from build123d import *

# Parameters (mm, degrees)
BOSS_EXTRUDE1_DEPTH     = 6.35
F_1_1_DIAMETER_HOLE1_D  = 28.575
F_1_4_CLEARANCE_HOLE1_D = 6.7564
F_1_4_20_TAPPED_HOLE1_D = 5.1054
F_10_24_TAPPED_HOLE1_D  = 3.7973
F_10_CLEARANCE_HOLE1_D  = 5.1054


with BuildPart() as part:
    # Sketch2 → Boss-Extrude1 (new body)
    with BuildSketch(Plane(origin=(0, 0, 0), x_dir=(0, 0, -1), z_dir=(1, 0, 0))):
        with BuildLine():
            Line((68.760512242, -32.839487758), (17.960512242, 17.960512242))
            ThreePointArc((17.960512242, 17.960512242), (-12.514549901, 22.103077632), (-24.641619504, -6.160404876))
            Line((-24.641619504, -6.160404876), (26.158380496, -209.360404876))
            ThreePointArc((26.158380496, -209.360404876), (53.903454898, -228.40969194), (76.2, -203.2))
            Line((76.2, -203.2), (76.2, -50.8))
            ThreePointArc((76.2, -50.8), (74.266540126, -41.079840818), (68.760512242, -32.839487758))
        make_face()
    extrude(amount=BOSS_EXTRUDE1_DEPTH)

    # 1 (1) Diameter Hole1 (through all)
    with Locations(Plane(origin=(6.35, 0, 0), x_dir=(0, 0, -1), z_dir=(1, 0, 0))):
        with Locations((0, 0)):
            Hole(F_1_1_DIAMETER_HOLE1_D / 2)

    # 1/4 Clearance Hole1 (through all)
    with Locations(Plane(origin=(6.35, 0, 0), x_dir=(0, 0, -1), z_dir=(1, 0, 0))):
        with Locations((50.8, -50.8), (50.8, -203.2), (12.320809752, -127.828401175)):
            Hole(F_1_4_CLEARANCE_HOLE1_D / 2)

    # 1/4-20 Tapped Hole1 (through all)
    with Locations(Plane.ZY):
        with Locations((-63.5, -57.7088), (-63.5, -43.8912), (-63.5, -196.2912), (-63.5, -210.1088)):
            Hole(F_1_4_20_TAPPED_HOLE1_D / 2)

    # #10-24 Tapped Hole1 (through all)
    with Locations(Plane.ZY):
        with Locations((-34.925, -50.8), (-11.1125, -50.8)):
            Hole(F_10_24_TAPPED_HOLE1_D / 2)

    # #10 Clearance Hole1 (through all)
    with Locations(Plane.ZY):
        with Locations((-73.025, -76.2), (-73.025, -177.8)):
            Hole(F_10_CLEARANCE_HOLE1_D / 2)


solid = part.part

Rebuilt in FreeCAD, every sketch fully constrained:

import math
import FreeCAD as App
import Part
import Sketcher
Q = App.Units.Quantity

doc = App.newDocument("Part")
body = doc.addObject("PartDesign::Body", "Body")

sketch1 = body.newObject("Sketcher::SketchObject", "Sketch")
sketch1.AttachmentSupport = (doc.getObject("YZ_Plane"), [""])
sketch1.MapMode = "FlatFace"
sketch1.addGeometry([
    Part.LineSegment(App.Vector(-33, -69, 0), App.Vector(18, -18, 0)),
    Part.ArcOfCircle(Part.Circle(App.Vector(0, 0, 0), App.Vector(0, 0, 1), 25), math.radians(-45), math.radians(104)),
    Part.LineSegment(App.Vector(-6, 25, 0), App.Vector(-209, -26, 0)),
    Part.ArcOfCircle(Part.Circle(App.Vector(-203, -51, 0), App.Vector(0, 0, 1), 25), math.radians(104), math.radians(270)),
    Part.LineSegment(App.Vector(-203, -76, 0), App.Vector(-51, -76, 0)),
    Part.ArcOfCircle(Part.Circle(App.Vector(-51, -51, 0), App.Vector(0, 0, 1), 25), math.radians(-90), math.radians(-45)),
], False)
sketch1.addConstraint([
    Sketcher.Constraint("Tangent", 0, 2, 1, 1),
    Sketcher.Constraint("Tangent", 1, 2, 2, 1),
    Sketcher.Constraint("Tangent", 2, 2, 3, 1),
    Sketcher.Constraint("Tangent", 3, 2, 4, 1),
    Sketcher.Constraint("Tangent", 4, 2, 5, 1),
    Sketcher.Constraint("Tangent", 5, 2, 0, 1),
    Sketcher.Constraint("Horizontal", 4),
    Sketcher.Constraint("Coincident", 1, 3, -1, 1),
    Sketcher.Constraint("Equal", 1, 3),
    Sketcher.Constraint("Equal", 3, 5),
    Sketcher.Constraint("Radius", 1, Q("1 in")),
    Sketcher.Constraint("DistanceX", 4, 1, 4, 2, Q("6 in")),
    Sketcher.Constraint("DistanceX", 3, 3, -1, 1, Q("8 in")),
    Sketcher.Constraint("DistanceY", 3, 3, -1, 1, Q("2 in")),
])
pad1 = body.newObject("PartDesign::Pad", "Pad")
pad1.Profile = sketch1
pad1.Length = Q("0.25 in")

sketch2 = body.newObject("Sketcher::SketchObject", "Sketch001")
sketch2.AttachmentSupport = (doc.getObject("YZ_Plane"), [""])
sketch2.MapMode = "FlatFace"
sketch2.AttachmentOffset = App.Placement(App.Vector(0, 0, 0.25 * 25.4), App.Rotation())
sketch2.addGeometry(Part.Circle(App.Vector(0, 0, 0), App.Vector(0, 0, 1), 14), False)
sketch2.addConstraint([
    Sketcher.Constraint("Coincident", 0, 3, -1, 1),
    Sketcher.Constraint("Diameter", 0, Q("1.125 in")),
])
doc.recompute()
hole = body.newObject("PartDesign::Hole", "Hole")
hole.Profile = sketch2
hole.ThreadType = "None"
hole.Diameter = Q("1.125 in")
hole.DepthType = "ThroughAll"

sketch3 = body.newObject("Sketcher::SketchObject", "Sketch002")
sketch3.AttachmentSupport = (doc.getObject("YZ_Plane"), [""])
sketch3.MapMode = "FlatFace"
sketch3.AttachmentOffset = App.Placement(App.Vector(0, 0, 0.25 * 25.4), App.Rotation())
sketch3.addGeometry([
    Part.Circle(App.Vector(-50.8, -50.8, 0), App.Vector(0, 0, 1), 3.4),
    Part.Circle(App.Vector(-203.2, -50.8, 0), App.Vector(0, 0, 1), 3.4),
    Part.Circle(App.Vector(-127.8, -12.3, 0), App.Vector(0, 0, 1), 3.4),
], False)
sketch3.addConstraint([
    Sketcher.Constraint("Equal", 0, 1),
    Sketcher.Constraint("Equal", 1, 2),
    Sketcher.Constraint("Horizontal", 0, 3, 1, 3),
    Sketcher.Constraint("Diameter", 0, Q("0.266 in")),
    Sketcher.Constraint("DistanceX", 0, 3, -1, 1, Q("2 in")),
    Sketcher.Constraint("DistanceY", 0, 3, -1, 1, Q("2 in")),
    Sketcher.Constraint("DistanceX", 1, 3, -1, 1, Q("8 in")),
    Sketcher.Constraint("DistanceX", 2, 3, -1, 1, Q("127.828401 mm")),
    Sketcher.Constraint("DistanceY", 2, 3, -1, 1, Q("12.32081 mm")),
])
doc.recompute()
hole2 = body.newObject("PartDesign::Hole", "Hole001")
hole2.Profile = sketch3
hole2.ThreadType = "None"
hole2.Diameter = Q("0.266 in")
hole2.DepthType = "ThroughAll"

sketch4 = body.newObject("Sketcher::SketchObject", "Sketch003")
sketch4.AttachmentSupport = (doc.getObject("YZ_Plane"), [""])
sketch4.MapMode = "FlatFace"
sketch4.addGeometry([
    Part.Circle(App.Vector(-57.7, -63.5, 0), App.Vector(0, 0, 1), 2.6),
    Part.Circle(App.Vector(-43.9, -63.5, 0), App.Vector(0, 0, 1), 2.6),
    Part.Circle(App.Vector(-196.3, -63.5, 0), App.Vector(0, 0, 1), 2.6),
    Part.Circle(App.Vector(-210.1, -63.5, 0), App.Vector(0, 0, 1), 2.6),
], False)
sketch4.addConstraint([
    Sketcher.Constraint("Equal", 0, 1),
    Sketcher.Constraint("Equal", 1, 2),
    Sketcher.Constraint("Equal", 2, 3),
    Sketcher.Constraint("Horizontal", 0, 3, 1, 3),
    Sketcher.Constraint("Horizontal", 1, 3, 2, 3),
    Sketcher.Constraint("Horizontal", 2, 3, 3, 3),
    Sketcher.Constraint("Diameter", 0, Q("0.201 in")),
    Sketcher.Constraint("DistanceX", 2, 3, 1, 3, Q("6 in")),
    Sketcher.Constraint("DistanceX", 3, 3, 0, 3, Q("6 in")),
    Sketcher.Constraint("DistanceY", 0, 3, -1, 1, Q("2.5 in")),
    Sketcher.Constraint("DistanceX", 0, 3, -1, 1, Q("2.272 in")),
    Sketcher.Constraint("DistanceX", 1, 3, -1, 1, Q("1.728 in")),
])
doc.recompute()
hole3 = body.newObject("PartDesign::Hole", "Hole002")
hole3.Profile = sketch4
hole3.ThreadType = "None"
hole3.Diameter = Q("0.201 in")
hole3.DepthType = "ThroughAll"
hole3.Reversed = True

sketch5 = body.newObject("Sketcher::SketchObject", "Sketch004")
sketch5.AttachmentSupport = (doc.getObject("YZ_Plane"), [""])
sketch5.MapMode = "FlatFace"
sketch5.addGeometry([
    Part.Circle(App.Vector(-50.8, -34.9, 0), App.Vector(0, 0, 1), 1.9),
    Part.Circle(App.Vector(-50.8, -11.1, 0), App.Vector(0, 0, 1), 1.9),
], False)
sketch5.addConstraint([
    Sketcher.Constraint("Equal", 0, 1),
    Sketcher.Constraint("Vertical", 0, 3, 1, 3),
    Sketcher.Constraint("DistanceX", 0, 3, -1, 1, Q("2 in")),
    Sketcher.Constraint("Diameter", 0, Q("0.1495 in")),
    Sketcher.Constraint("DistanceY", 0, 3, -1, 1, Q("1.375 in")),
    Sketcher.Constraint("DistanceY", 1, 3, -1, 1, Q("0.4375 in")),
])
doc.recompute()
hole4 = body.newObject("PartDesign::Hole", "Hole003")
hole4.Profile = sketch5
hole4.ThreadType = "None"
hole4.Diameter = Q("0.1495 in")
hole4.DepthType = "ThroughAll"
hole4.Reversed = True

sketch6 = body.newObject("Sketcher::SketchObject", "Sketch005")
sketch6.AttachmentSupport = (doc.getObject("YZ_Plane"), [""])
sketch6.MapMode = "FlatFace"
sketch6.addGeometry([
    Part.Circle(App.Vector(-76.2, -73, 0), App.Vector(0, 0, 1), 2.6),
    Part.Circle(App.Vector(-177.8, -73, 0), App.Vector(0, 0, 1), 2.6),
], False)
sketch6.addConstraint([
    Sketcher.Constraint("Equal", 0, 1),
    Sketcher.Constraint("Horizontal", 0, 3, 1, 3),
    Sketcher.Constraint("Diameter", 0, Q("0.201 in")),
    Sketcher.Constraint("DistanceX", 0, 3, -1, 1, Q("3 in")),
    Sketcher.Constraint("DistanceX", 1, 3, -1, 1, Q("7 in")),
    Sketcher.Constraint("DistanceY", 0, 3, -1, 1, Q("2.875 in")),
])
doc.recompute()
hole5 = body.newObject("PartDesign::Hole", "Hole004")
hole5.Profile = sketch6
hole5.ThreadType = "None"
hole5.Diameter = Q("0.201 in")
hole5.DepthType = "ThroughAll"
hole5.Reversed = True

doc.recompute()
